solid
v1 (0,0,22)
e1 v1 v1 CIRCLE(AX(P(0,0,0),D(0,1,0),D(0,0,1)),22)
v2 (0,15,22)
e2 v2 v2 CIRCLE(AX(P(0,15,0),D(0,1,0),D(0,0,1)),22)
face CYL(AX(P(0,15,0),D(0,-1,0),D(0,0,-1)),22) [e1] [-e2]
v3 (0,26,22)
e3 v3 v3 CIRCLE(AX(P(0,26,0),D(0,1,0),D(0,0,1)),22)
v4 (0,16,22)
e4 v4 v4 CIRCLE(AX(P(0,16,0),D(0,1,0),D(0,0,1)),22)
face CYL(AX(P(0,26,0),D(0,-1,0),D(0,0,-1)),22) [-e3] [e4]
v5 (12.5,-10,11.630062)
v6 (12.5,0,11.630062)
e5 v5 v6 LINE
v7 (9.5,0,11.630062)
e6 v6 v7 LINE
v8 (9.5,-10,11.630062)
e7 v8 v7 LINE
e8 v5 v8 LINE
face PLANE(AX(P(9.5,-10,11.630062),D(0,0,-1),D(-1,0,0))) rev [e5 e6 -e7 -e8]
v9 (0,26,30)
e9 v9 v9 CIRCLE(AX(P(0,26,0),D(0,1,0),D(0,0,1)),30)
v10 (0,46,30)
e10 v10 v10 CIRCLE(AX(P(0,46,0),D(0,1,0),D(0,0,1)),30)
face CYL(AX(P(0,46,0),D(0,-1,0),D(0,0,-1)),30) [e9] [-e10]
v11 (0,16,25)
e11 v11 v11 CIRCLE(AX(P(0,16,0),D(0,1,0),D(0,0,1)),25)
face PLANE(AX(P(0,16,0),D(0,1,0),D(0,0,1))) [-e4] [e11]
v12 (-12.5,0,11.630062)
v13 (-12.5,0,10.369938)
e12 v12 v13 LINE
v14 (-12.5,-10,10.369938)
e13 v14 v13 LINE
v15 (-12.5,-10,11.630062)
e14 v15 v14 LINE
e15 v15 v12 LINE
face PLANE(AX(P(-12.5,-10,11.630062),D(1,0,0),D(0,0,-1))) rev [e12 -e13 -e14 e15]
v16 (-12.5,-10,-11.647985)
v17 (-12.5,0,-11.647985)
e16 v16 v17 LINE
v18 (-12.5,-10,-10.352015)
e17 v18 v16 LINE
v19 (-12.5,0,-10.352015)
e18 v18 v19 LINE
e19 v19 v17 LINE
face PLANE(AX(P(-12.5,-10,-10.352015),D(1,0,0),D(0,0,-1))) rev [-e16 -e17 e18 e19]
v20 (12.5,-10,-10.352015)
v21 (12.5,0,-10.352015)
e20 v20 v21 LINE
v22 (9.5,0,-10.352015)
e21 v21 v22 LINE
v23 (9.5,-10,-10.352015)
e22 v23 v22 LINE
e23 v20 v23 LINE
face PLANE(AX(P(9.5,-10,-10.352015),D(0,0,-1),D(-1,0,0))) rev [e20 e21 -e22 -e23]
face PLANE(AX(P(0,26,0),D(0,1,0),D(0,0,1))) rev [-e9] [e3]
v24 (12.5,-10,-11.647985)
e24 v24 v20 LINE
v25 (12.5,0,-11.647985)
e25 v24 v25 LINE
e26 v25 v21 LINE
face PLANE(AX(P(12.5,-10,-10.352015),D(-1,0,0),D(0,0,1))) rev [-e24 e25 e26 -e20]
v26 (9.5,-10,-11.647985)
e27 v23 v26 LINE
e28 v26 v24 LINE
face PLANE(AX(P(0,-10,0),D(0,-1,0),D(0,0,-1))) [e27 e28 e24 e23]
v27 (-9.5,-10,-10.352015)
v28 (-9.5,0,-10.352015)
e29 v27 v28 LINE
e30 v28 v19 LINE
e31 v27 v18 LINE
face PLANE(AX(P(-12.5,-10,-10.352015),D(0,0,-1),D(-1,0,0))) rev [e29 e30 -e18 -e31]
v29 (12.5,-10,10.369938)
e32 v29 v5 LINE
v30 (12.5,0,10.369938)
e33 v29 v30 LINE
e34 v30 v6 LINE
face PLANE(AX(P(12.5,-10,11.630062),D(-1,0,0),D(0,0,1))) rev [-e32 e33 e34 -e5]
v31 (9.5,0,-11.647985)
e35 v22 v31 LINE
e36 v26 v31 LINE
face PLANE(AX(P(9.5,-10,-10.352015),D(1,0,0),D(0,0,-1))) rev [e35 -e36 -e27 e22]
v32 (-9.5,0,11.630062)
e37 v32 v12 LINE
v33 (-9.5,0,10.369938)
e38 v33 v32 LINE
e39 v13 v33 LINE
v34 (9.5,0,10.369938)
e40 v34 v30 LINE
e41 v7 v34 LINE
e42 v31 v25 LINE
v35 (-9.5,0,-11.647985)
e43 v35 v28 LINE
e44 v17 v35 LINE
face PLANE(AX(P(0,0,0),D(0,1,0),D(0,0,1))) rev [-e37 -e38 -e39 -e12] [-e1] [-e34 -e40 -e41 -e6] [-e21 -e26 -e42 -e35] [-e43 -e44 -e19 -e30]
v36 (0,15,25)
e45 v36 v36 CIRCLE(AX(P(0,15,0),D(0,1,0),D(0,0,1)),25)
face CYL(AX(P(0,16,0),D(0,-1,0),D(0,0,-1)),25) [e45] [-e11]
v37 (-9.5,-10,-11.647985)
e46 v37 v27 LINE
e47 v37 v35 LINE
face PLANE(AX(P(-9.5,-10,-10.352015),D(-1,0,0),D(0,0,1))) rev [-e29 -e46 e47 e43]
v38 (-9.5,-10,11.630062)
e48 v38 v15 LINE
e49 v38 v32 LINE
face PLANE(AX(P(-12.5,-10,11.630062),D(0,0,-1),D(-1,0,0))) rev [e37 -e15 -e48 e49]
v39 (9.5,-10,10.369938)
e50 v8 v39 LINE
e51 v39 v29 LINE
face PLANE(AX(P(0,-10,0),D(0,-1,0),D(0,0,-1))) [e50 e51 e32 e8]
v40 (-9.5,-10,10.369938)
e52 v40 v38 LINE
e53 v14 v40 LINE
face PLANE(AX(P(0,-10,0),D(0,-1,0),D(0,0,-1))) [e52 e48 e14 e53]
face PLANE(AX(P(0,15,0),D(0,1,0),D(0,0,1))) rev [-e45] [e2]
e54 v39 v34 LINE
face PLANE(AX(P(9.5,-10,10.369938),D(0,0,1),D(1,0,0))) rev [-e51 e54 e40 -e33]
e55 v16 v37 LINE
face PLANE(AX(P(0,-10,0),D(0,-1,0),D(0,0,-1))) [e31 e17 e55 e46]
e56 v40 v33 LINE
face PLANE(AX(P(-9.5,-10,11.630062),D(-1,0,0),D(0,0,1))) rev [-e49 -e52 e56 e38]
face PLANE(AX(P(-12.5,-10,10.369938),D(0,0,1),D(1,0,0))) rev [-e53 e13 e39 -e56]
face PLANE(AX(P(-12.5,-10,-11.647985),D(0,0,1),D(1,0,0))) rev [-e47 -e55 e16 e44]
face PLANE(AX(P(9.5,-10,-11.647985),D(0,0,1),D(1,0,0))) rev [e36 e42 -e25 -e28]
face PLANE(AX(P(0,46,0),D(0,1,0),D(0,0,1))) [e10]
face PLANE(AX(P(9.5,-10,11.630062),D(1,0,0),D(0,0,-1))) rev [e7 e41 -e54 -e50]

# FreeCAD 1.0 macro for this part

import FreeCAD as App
import Part
import Sketcher
from FreeCAD import Vector
Q = App.Units.Quantity


def add_polygon(sketch, points):
    """Adds a closed chain of lines whose ends are joined by coincident constraints."""
    first, n = sketch.GeometryCount, len(points)
    for a, b in zip(points, points[1:] + points[:1]):
        sketch.addGeometry(Part.LineSegment(App.Vector(*a, 0), App.Vector(*b, 0)), False)
    for i in range(n):
        sketch.addConstraint(Sketcher.Constraint("Coincident", first + i, 2, first + (i + 1) % n, 1))

doc = App.newDocument("Part")
params = doc.addObject("Spreadsheet::Sheet", "Params")
for row, (alias, value) in enumerate([
    ("sketch1_diameter", "44 mm"),
    ("pad1_length", "15 mm"),
    ("sketch2_diameter", "50 mm"),
    ("pad2_length", "1 mm"),
    ("sketch3_diameter", "44 mm"),
    ("pad3_length", "10 mm"),
    ("sketch4_diameter", "60 mm"),
    ("pad4_length", "20 mm"),
    ("sketch5_width", "3 mm"),
    ("pad5_length", "10 mm"),
], start=1):
    params.set(f"A{row}", alias)
    params.set(f"B{row}", "=" + value)
    params.setAlias(f"B{row}", alias)

body = doc.addObject("PartDesign::Body", "Body")

sketch1 = body.newObject("Sketcher::SketchObject", "Sketch")
sketch1.AttachmentSupport = (doc.getObject("XZ_Plane"), [""])
sketch1.MapMode = "FlatFace"
sketch1.addGeometry(Part.Circle(Vector(0, 0, 0), Vector(0, 0, 1), 22), False)
sketch1.addConstraint([
    Sketcher.Constraint("Coincident", 0, 3, -1, 1),
    Sketcher.Constraint("Diameter", 0, Q("44 mm")),
])
sketch1.setExpression("Constraints[1]", "Params.sketch1_diameter")
pad1 = body.newObject("PartDesign::Pad", "Pad")
pad1.Profile = sketch1
pad1.setExpression("Length", "Params.pad1_length")
pad1.Reversed = True

sketch2 = body.newObject("Sketcher::SketchObject", "Sketch001")
sketch2.AttachmentSupport = (doc.getObject("XZ_Plane"), [""])
sketch2.MapMode = "FlatFace"
sketch2.AttachmentOffset = App.Placement(Vector(0, 0, -15), App.Rotation())
sketch2.addGeometry(Part.Circle(Vector(0, 0, 0), Vector(0, 0, 1), 25), False)
sketch2.addConstraint([
    Sketcher.Constraint("Coincident", 0, 3, -1, 1),
    Sketcher.Constraint("Diameter", 0, Q("50 mm")),
])
sketch2.setExpression("Constraints[1]", "Params.sketch2_diameter")
pad2 = body.newObject("PartDesign::Pad", "Pad001")
pad2.Profile = sketch2
pad2.setExpression("Length", "Params.pad2_length")
pad2.Reversed = True

sketch3 = body.newObject("Sketcher::SketchObject", "Sketch002")
sketch3.AttachmentSupport = (doc.getObject("XZ_Plane"), [""])
sketch3.MapMode = "FlatFace"
sketch3.AttachmentOffset = App.Placement(Vector(0, 0, -16), App.Rotation())
sketch3.addGeometry(Part.Circle(Vector(0, 0, 0), Vector(0, 0, 1), 22), False)
sketch3.addConstraint([
    Sketcher.Constraint("Coincident", 0, 3, -1, 1),
    Sketcher.Constraint("Diameter", 0, Q("44 mm")),
])
sketch3.setExpression("Constraints[1]", "Params.sketch3_diameter")
pad3 = body.newObject("PartDesign::Pad", "Pad002")
pad3.Profile = sketch3
pad3.setExpression("Length", "Params.pad3_length")
pad3.Reversed = True

sketch4 = body.newObject("Sketcher::SketchObject", "Sketch003")
sketch4.AttachmentSupport = (doc.getObject("XZ_Plane"), [""])
sketch4.MapMode = "FlatFace"
sketch4.AttachmentOffset = App.Placement(Vector(0, 0, -26), App.Rotation())
sketch4.addGeometry(Part.Circle(Vector(0, 0, 0), Vector(0, 0, 1), 30), False)
sketch4.addConstraint([
    Sketcher.Constraint("Coincident", 0, 3, -1, 1),
    Sketcher.Constraint("Diameter", 0, Q("60 mm")),
])
sketch4.setExpression("Constraints[1]", "Params.sketch4_diameter")
pad4 = body.newObject("PartDesign::Pad", "Pad003")
pad4.Profile = sketch4
pad4.setExpression("Length", "Params.pad4_length")
pad4.Reversed = True

sketch5 = body.newObject("Sketcher::SketchObject", "Sketch004")
sketch5.AttachmentSupport = (doc.getObject("XZ_Plane"), [""])
sketch5.MapMode = "FlatFace"
add_polygon(sketch5, [(-12.5, 11.6), (-12.5, 10.4), (-9.5, 10.4), (-9.5, 11.6)])
add_polygon(sketch5, [(-12.5, -10.4), (-12.5, -11.6), (-9.5, -11.6), (-9.5, -10.4)])
add_polygon(sketch5, [(9.5, -10.4), (9.5, -11.6), (12.5, -11.6), (12.5, -10.4)])
add_polygon(sketch5, [(9.5, 11.6), (9.5, 10.4), (12.5, 10.4), (12.5, 11.6)])
sketch5.addConstraint([
    Sketcher.Constraint("Vertical", 0),
    Sketcher.Constraint("Horizontal", 1),
    Sketcher.Constraint("Vertical", 2),
    Sketcher.Constraint("Horizontal", 3),
    Sketcher.Constraint("Vertical", 4),
    Sketcher.Constraint("Horizontal", 5),
    Sketcher.Constraint("Vertical", 6),
    Sketcher.Constraint("Horizontal", 7),
    Sketcher.Constraint("Vertical", 8),
    Sketcher.Constraint("Horizontal", 9),
    Sketcher.Constraint("Vertical", 10),
    Sketcher.Constraint("Horizontal", 11),
    Sketcher.Constraint("Vertical", 12),
    Sketcher.Constraint("Horizontal", 13),
    Sketcher.Constraint("Vertical", 14),
    Sketcher.Constraint("Horizontal", 15),
    Sketcher.Constraint("Symmetric", 5, 2, 8, 2, -2),
    Sketcher.Constraint("Symmetric", 7, 2, 10, 2, -2),
    Sketcher.Constraint("Symmetric", 1, 2, 12, 2, -2),
    Sketcher.Constraint("Symmetric", 3, 2, 14, 2, -2),
    Sketcher.Constraint("Vertical", 3, 2, 4, 2),
    Sketcher.Constraint("Vertical", 2, 2, 5, 2),
    Sketcher.Constraint("DistanceX", 1, 1, 1, 2, Q("3 mm")),
    Sketcher.Constraint("DistanceX", 5, 2, 8, 2, Q("19 mm")),
    Sketcher.Constraint("DistanceY", 4, 2, 4, 1, Q("1.29597 mm")),
    Sketcher.Constraint("DistanceY", 0, 2, 0, 1, Q("1.260124 mm")),
    Sketcher.Constraint("DistanceY", -1, 1, 0, 2, Q("10.369938 mm")),
    Sketcher.Constraint("DistanceY", 4, 2, -1, 1, Q("11.647985 mm")),
])
sketch5.setExpression("Constraints[38]", "Params.sketch5_width")
pad5 = body.newObject("PartDesign::Pad", "Pad004")
pad5.Profile = sketch5
pad5.setExpression("Length", "Params.pad5_length")

doc.recompute()
